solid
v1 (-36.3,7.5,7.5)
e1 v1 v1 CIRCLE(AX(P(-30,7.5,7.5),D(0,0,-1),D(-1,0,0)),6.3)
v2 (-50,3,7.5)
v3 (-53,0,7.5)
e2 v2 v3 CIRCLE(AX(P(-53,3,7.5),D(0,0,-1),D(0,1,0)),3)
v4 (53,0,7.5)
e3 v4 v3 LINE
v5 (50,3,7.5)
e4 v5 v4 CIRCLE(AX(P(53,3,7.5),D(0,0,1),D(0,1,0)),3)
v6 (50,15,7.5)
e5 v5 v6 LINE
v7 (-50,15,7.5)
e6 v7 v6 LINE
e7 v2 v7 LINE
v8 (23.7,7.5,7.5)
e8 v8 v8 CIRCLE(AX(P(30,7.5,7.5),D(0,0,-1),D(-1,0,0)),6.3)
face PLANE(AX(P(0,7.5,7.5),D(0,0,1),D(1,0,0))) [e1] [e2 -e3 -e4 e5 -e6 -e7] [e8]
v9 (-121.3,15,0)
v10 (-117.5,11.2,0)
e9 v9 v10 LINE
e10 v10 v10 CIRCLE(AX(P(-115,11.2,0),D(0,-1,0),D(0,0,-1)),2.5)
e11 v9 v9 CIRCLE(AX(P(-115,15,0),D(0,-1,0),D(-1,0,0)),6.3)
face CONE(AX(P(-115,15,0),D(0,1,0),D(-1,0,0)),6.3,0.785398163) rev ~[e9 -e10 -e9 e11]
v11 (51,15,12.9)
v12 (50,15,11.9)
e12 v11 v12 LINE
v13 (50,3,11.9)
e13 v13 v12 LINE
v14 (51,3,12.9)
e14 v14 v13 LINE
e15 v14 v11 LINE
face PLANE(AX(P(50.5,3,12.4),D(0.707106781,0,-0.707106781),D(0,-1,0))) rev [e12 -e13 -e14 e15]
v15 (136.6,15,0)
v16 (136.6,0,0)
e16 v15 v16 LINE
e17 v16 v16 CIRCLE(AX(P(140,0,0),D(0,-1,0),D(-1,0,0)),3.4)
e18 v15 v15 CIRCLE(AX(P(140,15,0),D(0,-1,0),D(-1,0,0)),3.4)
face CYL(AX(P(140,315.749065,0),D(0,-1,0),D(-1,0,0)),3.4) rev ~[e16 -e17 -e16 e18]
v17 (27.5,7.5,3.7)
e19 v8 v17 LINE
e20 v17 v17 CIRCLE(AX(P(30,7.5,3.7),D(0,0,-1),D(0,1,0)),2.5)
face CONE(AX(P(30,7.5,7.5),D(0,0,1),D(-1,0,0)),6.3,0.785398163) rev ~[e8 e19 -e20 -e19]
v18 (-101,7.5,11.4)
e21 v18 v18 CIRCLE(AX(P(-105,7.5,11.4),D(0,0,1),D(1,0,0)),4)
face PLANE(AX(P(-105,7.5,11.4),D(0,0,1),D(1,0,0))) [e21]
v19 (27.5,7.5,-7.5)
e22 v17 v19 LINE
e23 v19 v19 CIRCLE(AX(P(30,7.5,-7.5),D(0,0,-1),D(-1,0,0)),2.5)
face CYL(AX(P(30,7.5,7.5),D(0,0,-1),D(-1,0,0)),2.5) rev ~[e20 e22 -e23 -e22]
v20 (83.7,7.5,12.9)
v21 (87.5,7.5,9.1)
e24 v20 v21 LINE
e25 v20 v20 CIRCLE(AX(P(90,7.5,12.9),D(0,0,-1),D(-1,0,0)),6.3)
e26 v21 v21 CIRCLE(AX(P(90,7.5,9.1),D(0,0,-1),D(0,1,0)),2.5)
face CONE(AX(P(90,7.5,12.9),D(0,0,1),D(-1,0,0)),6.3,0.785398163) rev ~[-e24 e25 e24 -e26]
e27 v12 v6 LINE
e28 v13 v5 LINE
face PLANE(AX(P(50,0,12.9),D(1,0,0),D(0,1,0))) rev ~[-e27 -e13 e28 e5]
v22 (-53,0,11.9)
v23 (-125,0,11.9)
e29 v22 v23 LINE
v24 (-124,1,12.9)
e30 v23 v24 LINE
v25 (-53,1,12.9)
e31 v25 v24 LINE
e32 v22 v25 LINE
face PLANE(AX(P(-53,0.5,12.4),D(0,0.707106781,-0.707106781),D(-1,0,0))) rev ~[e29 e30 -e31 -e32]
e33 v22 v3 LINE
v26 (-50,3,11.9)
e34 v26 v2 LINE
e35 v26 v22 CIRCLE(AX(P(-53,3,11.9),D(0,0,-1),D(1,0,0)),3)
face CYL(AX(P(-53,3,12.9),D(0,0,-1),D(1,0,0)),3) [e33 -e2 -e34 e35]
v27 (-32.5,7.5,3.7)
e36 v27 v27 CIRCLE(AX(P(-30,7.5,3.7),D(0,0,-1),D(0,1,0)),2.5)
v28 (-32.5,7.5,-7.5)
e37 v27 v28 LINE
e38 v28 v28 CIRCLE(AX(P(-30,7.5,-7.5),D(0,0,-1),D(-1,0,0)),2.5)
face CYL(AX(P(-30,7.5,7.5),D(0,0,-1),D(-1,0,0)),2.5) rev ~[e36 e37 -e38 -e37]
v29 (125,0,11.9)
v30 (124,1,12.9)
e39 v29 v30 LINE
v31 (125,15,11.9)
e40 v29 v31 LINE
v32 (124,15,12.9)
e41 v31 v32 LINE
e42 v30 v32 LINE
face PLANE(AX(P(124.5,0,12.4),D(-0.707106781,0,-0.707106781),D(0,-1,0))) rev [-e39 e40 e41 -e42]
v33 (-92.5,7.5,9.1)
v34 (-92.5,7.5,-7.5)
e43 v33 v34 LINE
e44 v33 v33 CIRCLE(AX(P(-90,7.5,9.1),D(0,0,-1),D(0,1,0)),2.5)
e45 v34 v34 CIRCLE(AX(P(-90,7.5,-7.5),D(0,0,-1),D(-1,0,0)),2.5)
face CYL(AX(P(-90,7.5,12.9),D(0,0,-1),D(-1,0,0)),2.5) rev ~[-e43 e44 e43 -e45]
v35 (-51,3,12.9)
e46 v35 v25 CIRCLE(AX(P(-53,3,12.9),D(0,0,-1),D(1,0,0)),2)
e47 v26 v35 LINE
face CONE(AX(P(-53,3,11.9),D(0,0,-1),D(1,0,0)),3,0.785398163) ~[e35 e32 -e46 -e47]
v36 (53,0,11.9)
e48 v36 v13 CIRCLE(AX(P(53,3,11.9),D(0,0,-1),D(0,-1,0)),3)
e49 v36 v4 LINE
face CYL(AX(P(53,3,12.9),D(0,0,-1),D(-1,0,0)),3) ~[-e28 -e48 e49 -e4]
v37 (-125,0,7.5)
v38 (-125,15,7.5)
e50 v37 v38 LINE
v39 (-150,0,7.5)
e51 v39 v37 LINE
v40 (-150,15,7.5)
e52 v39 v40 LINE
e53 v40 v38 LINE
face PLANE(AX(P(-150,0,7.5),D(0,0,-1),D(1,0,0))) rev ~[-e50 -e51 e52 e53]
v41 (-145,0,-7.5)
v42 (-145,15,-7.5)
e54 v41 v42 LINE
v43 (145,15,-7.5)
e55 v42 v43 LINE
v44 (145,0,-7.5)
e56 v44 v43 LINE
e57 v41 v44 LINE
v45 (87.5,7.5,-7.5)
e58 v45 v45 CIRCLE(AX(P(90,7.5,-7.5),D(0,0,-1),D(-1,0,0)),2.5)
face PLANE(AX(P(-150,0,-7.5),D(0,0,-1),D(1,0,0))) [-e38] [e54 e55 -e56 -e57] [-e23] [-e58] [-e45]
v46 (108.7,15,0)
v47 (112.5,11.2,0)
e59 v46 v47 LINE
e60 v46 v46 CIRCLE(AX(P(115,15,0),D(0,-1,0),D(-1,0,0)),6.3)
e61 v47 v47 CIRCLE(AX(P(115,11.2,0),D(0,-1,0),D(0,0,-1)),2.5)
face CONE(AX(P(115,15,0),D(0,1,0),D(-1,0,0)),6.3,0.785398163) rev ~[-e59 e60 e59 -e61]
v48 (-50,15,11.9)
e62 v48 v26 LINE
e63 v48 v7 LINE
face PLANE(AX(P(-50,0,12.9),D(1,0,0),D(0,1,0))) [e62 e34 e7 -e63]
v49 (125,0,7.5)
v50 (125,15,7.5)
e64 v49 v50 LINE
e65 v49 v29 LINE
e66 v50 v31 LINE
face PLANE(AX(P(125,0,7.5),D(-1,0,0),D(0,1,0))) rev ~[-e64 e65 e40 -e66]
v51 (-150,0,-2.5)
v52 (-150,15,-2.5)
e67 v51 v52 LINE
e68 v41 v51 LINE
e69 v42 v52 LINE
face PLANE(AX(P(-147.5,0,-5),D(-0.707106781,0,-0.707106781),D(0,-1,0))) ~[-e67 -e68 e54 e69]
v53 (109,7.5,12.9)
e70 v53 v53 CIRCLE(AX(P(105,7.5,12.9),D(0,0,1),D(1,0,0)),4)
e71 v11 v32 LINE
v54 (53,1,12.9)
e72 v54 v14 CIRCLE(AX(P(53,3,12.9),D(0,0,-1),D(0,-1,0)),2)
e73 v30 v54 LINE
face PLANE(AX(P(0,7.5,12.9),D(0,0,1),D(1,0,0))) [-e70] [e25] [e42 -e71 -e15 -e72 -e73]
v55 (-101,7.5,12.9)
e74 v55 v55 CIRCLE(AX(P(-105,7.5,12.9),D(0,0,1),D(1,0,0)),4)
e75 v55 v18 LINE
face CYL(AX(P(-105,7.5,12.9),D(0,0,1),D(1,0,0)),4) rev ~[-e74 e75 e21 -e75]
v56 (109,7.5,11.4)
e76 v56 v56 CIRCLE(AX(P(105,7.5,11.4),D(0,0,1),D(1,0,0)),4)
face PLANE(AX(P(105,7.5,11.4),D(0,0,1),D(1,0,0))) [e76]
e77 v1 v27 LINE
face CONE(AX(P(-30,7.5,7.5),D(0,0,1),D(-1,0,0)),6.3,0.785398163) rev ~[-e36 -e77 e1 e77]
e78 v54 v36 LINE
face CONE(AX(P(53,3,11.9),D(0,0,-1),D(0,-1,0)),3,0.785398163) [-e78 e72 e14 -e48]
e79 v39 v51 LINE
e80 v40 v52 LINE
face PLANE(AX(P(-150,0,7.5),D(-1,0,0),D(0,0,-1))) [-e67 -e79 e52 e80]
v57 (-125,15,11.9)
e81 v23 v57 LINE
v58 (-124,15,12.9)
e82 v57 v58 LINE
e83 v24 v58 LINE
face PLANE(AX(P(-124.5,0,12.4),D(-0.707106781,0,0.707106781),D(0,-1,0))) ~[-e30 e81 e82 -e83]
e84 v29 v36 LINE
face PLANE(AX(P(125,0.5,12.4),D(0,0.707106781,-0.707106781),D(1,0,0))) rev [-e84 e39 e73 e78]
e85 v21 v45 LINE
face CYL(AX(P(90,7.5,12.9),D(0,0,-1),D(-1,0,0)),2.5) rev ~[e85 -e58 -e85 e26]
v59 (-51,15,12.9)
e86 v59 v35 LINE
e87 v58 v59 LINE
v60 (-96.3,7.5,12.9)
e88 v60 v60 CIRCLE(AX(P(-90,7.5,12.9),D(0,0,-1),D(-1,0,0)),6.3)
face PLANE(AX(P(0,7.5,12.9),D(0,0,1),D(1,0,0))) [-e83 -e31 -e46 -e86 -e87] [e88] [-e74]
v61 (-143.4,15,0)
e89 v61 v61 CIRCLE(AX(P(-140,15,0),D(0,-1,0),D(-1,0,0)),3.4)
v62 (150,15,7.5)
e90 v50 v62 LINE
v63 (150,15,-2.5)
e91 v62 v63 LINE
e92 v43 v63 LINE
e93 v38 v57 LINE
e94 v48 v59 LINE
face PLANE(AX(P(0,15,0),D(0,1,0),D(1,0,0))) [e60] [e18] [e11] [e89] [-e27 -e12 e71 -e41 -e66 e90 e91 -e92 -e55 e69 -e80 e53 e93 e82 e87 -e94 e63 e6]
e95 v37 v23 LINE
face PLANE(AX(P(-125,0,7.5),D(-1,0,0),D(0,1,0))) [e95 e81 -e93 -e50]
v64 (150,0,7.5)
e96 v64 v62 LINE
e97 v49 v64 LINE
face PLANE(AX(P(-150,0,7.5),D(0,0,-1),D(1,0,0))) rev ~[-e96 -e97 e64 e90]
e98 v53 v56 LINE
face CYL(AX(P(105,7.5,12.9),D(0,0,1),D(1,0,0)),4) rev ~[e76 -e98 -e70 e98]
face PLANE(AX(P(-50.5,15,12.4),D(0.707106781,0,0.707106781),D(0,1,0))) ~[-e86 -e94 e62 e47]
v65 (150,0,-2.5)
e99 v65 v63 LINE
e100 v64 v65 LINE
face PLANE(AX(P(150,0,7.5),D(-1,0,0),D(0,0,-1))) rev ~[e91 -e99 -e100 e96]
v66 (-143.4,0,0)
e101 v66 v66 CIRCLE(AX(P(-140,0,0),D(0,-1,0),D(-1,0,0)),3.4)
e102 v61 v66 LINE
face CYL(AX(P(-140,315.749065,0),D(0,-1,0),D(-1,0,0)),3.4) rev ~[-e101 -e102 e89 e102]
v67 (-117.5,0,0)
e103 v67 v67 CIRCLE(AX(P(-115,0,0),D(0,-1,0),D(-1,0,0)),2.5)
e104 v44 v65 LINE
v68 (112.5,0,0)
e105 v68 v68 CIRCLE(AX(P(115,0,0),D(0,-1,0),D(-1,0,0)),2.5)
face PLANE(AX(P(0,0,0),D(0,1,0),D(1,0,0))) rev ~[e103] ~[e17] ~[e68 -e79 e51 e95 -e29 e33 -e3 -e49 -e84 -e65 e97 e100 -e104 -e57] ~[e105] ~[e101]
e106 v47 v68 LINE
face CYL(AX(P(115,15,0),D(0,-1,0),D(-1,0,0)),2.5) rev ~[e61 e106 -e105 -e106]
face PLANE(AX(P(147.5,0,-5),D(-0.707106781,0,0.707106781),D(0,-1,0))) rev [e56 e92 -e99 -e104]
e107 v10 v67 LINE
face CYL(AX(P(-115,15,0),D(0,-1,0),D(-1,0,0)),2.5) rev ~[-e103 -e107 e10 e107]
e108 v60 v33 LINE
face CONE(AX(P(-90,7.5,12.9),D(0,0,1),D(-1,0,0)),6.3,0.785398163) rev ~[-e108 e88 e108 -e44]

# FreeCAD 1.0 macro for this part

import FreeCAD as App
import Part
import Sketcher

V = App.Vector


def edges_at(feature, points):
    """Names of the edges that pass closest to the given points."""
    edges = feature.Shape.Edges
    near = lambda p: min(range(len(edges)), key=lambda i: edges[i].distToShape(Part.Vertex(*p))[0])
    return sorted({f"Edge{near(p) + 1}" for p in points})


def add_polygon(sketch, points):
    """Adds a closed chain of lines whose ends are joined by coincident constraints."""
    first, n = sketch.GeometryCount, len(points)
    for a, b in zip(points, points[1:] + points[:1]):
        sketch.addGeometry(Part.LineSegment(App.Vector(*a, 0), App.Vector(*b, 0)), False)
    for i in range(n):
        sketch.addConstraint(Sketcher.Constraint("Coincident", first + i, 2, first + (i + 1) % n, 1))

doc = App.newDocument("Part")
body = doc.addObject("PartDesign::Body", "Body")

# Sketch on XZ plane
sketch1 = body.newObject("Sketcher::SketchObject", "Sketch")
sketch1.AttachmentSupport = (doc.getObject("XZ_Plane"), [""])
sketch1.MapMode = "FlatFace"
add_polygon(sketch1, [(-150, -7.5), (-150, 7.5), (150, 7.5), (150, -7.5)])  # lines 0-3
sketch1.addConstraint([
    Sketcher.Constraint("Vertical", 0),
    Sketcher.Constraint("Horizontal", 1),
    Sketcher.Constraint("Vertical", 2),
    Sketcher.Constraint("Horizontal", 3),
    Sketcher.Constraint("Symmetric", 0, 2, 2, 2, -1, 1),
    Sketcher.Constraint("DistanceX", 1, 1, 1, 2, 300.0),
    Sketcher.Constraint("DistanceY", 0, 1, 0, 2, 15.0),
])
pad1 = body.newObject("PartDesign::Pad", "Pad")
pad1.Profile = sketch1
pad1.Length = 15
pad1.Reversed = True

# Sketch on XZ plane
sketch2 = body.newObject("Sketcher::SketchObject", "Sketch001")
sketch2.AttachmentSupport = (doc.getObject("XZ_Plane"), [""])
sketch2.MapMode = "FlatFace"
sketch2.AttachmentOffset = App.Placement(V(0, 0, -15), App.Rotation())
sketch2.addGeometry([
    Part.Circle(V(-115, 0, 0), V(0, 0, 1), 2.5),
    Part.Circle(V(115, 0, 0), V(0, 0, 1), 2.5),
], False)
sketch2.addConstraint([
    Sketcher.Constraint("Equal", 0, 1),
    Sketcher.Constraint("Symmetric", 0, 3, 1, 3, -1, 1),
    Sketcher.Constraint("PointOnObject", 0, 3, -1),
    Sketcher.Constraint("Diameter", 0, 5.0),
    Sketcher.Constraint("DistanceX", 0, 3, -1, 1, 115.0),
])
doc.recompute()
hole = body.newObject("PartDesign::Hole", "Hole")
hole.Profile = sketch2
hole.ThreadType = "None"
hole.Diameter = 5
hole.DepthType = "ThroughAll"
hole.HoleCutType = "Countersink"
hole.HoleCutDiameter = 12.6
hole.HoleCutCountersinkAngle = 90
hole.Reversed = True

# Sketch on XZ plane
sketch3 = body.newObject("Sketcher::SketchObject", "Sketch002")
sketch3.AttachmentSupport = (doc.getObject("XZ_Plane"), [""])
sketch3.MapMode = "FlatFace"
sketch3.AttachmentOffset = App.Placement(V(0, 0, -15), App.Rotation())
sketch3.addGeometry([
    Part.Circle(V(-140, 0, 0), V(0, 0, 1), 3.4),
    Part.Circle(V(140, 0, 0), V(0, 0, 1), 3.4),
], False)
sketch3.addConstraint([
    Sketcher.Constraint("Equal", 0, 1),
    Sketcher.Constraint("Symmetric", 0, 3, 1, 3, -1, 1),
    Sketcher.Constraint("PointOnObject", 0, 3, -1),
    Sketcher.Constraint("Diameter", 0, 6.8),
    Sketcher.Constraint("DistanceX", 0, 3, -1, 1, 140.0),
])
doc.recompute()
hole2 = body.newObject("PartDesign::Hole", "Hole001")
hole2.Profile = sketch3
hole2.ThreadType = "None"
hole2.Diameter = 6.8
hole2.DepthType = "ThroughAll"
hole2.Reversed = True

# Sketch on XY plane
sketch4 = body.newObject("Sketcher::SketchObject", "Sketch003")
sketch4.AttachmentSupport = (doc.getObject("XY_Plane"), [""])
sketch4.MapMode = "FlatFace"
sketch4.AttachmentOffset = App.Placement(V(0, 0, 7.5), App.Rotation())
add_polygon(sketch4, [(-125, 15), (-125, 0), (125, 0), (125, 15)])  # lines 0-3
sketch4.addConstraint([
    Sketcher.Constraint("Vertical", 0),
    Sketcher.Constraint("Horizontal", 1),
    Sketcher.Constraint("Vertical", 2),
    Sketcher.Constraint("Horizontal", 3),
    Sketcher.Constraint("Symmetric", 0, 2, 1, 2, -1, 1),
    Sketcher.Constraint("DistanceX", 1, 1, 1, 2, 250.0),
    Sketcher.Constraint("DistanceY", 0, 2, 0, 1, 15.0),
])
pad2 = body.newObject("PartDesign::Pad", "Pad001")
pad2.Profile = sketch4
pad2.Length = 5.4

# Sketch on XY plane
sketch5 = body.newObject("Sketcher::SketchObject", "Sketch004")
sketch5.AttachmentSupport = (doc.getObject("XY_Plane"), [""])
sketch5.MapMode = "FlatFace"
sketch5.AttachmentOffset = App.Placement(V(0, 0, 12.9), App.Rotation())
sketch5.addGeometry([
    Part.Circle(V(-105, 7.5, 0), V(0, 0, 1), 4),
    Part.Circle(V(105, 7.5, 0), V(0, 0, 1), 4),
], False)
sketch5.addConstraint([
    Sketcher.Constraint("Equal", 0, 1),
    Sketcher.Constraint("Symmetric", 0, 3, 1, 3, -2),
    Sketcher.Constraint("Diameter", 0, 8.0),
    Sketcher.Constraint("DistanceX", 0, 3, -1, 1, 105.0),
    Sketcher.Constraint("DistanceY", -1, 1, 0, 3, 7.5),
])
pocket1 = body.newObject("PartDesign::Pocket", "Pocket")
pocket1.Profile = sketch5
pocket1.Length = 1.5

# Sketch on XY plane
sketch6 = body.newObject("Sketcher::SketchObject", "Sketch005")
sketch6.AttachmentSupport = (doc.getObject("XY_Plane"), [""])
sketch6.MapMode = "FlatFace"
sketch6.AttachmentOffset = App.Placement(V(0, 0, 12.9), App.Rotation())
add_polygon(sketch6, [(-50, 15), (-50, 0), (50, 0), (50, 15)])  # lines 0-3
sketch6.addConstraint([
    Sketcher.Constraint("Vertical", 0),
    Sketcher.Constraint("Horizontal", 1),
    Sketcher.Constraint("Vertical", 2),
    Sketcher.Constraint("Horizontal", 3),
    Sketcher.Constraint("Symmetric", 0, 2, 1, 2, -1, 1),
    Sketcher.Constraint("DistanceX", 1, 1, 1, 2, 100.0),
    Sketcher.Constraint("DistanceY", 0, 2, 0, 1, 15.0),
])
pocket2 = body.newObject("PartDesign::Pocket", "Pocket001")
pocket2.Profile = sketch6
pocket2.Length = 5.4

# Sketch on XY plane
sketch7 = body.newObject("Sketcher::SketchObject", "Sketch006")
sketch7.AttachmentSupport = (doc.getObject("XY_Plane"), [""])
sketch7.MapMode = "FlatFace"
sketch7.AttachmentOffset = App.Placement(V(0, 0, 12.9), App.Rotation())
sketch7.addGeometry([
    Part.Circle(V(-90, 7.5, 0), V(0, 0, 1), 2.5),
    Part.Circle(V(90, 7.5, 0), V(0, 0, 1), 2.5),
], False)
sketch7.addConstraint([
    Sketcher.Constraint("Equal", 0, 1),
    Sketcher.Constraint("Symmetric", 0, 3, 1, 3, -2),
    Sketcher.Constraint("Diameter", 0, 5.0),
    Sketcher.Constraint("DistanceX", 0, 3, -1, 1, 90.0),
    Sketcher.Constraint("DistanceY", -1, 1, 0, 3, 7.5),
])
doc.recompute()
hole3 = body.newObject("PartDesign::Hole", "Hole002")
hole3.Profile = sketch7
hole3.ThreadType = "None"
hole3.Diameter = 5
hole3.DepthType = "ThroughAll"
hole3.HoleCutType = "Countersink"
hole3.HoleCutDiameter = 12.6
hole3.HoleCutCountersinkAngle = 90

# Sketch on XY plane
sketch8 = body.newObject("Sketcher::SketchObject", "Sketch007")
sketch8.AttachmentSupport = (doc.getObject("XY_Plane"), [""])
sketch8.MapMode = "FlatFace"
sketch8.AttachmentOffset = App.Placement(V(0, 0, 7.5), App.Rotation())
sketch8.addGeometry([
    Part.Circle(V(-30, 7.5, 0), V(0, 0, 1), 2.5),
    Part.Circle(V(30, 7.5, 0), V(0, 0, 1), 2.5),
], False)
sketch8.addConstraint([
    Sketcher.Constraint("Equal", 0, 1),
    Sketcher.Constraint("Symmetric", 0, 3, 1, 3, -2),
    Sketcher.Constraint("Diameter", 0, 5.0),
    Sketcher.Constraint("DistanceX", 0, 3, -1, 1, 30.0),
    Sketcher.Constraint("DistanceY", -1, 1, 0, 3, 7.5),
])
doc.recompute()
hole4 = body.newObject("PartDesign::Hole", "Hole003")
hole4.Profile = sketch8
hole4.ThreadType = "None"
hole4.Diameter = 5
hole4.DepthType = "ThroughAll"
hole4.HoleCutType = "Countersink"
hole4.HoleCutDiameter = 12.6
hole4.HoleCutCountersinkAngle = 90
doc.recompute()

fillet = body.newObject("PartDesign::Fillet", "Fillet")
fillet.Base = (hole4, edges_at(hole4, [(-50, 0, 10.2), (50, 0, 10.2)]))
fillet.Radius = 3
doc.recompute()

chamfer = body.newObject("PartDesign::Chamfer", "Chamfer")
chamfer.Base = (fillet, edges_at(fillet, [(-150, 7.5, -7.5), (150, 7.5, -7.5)]))
chamfer.Size = 5
doc.recompute()

chamfer2 = body.newObject("PartDesign::Chamfer", "Chamfer001")
chamfer2.Base = (chamfer, edges_at(chamfer, [
    (-50.879, 0.879, 12.9),
    (-125, 7.5, 12.9),
    (-89, 0, 12.9),
    (125, 7.5, 12.9),
    (-50, 9, 12.9),
    (50, 9, 12.9),
    (89, 0, 12.9),
    (50.879, 0.879, 12.9),
]))
chamfer2.Size = 1

doc.recompute()
